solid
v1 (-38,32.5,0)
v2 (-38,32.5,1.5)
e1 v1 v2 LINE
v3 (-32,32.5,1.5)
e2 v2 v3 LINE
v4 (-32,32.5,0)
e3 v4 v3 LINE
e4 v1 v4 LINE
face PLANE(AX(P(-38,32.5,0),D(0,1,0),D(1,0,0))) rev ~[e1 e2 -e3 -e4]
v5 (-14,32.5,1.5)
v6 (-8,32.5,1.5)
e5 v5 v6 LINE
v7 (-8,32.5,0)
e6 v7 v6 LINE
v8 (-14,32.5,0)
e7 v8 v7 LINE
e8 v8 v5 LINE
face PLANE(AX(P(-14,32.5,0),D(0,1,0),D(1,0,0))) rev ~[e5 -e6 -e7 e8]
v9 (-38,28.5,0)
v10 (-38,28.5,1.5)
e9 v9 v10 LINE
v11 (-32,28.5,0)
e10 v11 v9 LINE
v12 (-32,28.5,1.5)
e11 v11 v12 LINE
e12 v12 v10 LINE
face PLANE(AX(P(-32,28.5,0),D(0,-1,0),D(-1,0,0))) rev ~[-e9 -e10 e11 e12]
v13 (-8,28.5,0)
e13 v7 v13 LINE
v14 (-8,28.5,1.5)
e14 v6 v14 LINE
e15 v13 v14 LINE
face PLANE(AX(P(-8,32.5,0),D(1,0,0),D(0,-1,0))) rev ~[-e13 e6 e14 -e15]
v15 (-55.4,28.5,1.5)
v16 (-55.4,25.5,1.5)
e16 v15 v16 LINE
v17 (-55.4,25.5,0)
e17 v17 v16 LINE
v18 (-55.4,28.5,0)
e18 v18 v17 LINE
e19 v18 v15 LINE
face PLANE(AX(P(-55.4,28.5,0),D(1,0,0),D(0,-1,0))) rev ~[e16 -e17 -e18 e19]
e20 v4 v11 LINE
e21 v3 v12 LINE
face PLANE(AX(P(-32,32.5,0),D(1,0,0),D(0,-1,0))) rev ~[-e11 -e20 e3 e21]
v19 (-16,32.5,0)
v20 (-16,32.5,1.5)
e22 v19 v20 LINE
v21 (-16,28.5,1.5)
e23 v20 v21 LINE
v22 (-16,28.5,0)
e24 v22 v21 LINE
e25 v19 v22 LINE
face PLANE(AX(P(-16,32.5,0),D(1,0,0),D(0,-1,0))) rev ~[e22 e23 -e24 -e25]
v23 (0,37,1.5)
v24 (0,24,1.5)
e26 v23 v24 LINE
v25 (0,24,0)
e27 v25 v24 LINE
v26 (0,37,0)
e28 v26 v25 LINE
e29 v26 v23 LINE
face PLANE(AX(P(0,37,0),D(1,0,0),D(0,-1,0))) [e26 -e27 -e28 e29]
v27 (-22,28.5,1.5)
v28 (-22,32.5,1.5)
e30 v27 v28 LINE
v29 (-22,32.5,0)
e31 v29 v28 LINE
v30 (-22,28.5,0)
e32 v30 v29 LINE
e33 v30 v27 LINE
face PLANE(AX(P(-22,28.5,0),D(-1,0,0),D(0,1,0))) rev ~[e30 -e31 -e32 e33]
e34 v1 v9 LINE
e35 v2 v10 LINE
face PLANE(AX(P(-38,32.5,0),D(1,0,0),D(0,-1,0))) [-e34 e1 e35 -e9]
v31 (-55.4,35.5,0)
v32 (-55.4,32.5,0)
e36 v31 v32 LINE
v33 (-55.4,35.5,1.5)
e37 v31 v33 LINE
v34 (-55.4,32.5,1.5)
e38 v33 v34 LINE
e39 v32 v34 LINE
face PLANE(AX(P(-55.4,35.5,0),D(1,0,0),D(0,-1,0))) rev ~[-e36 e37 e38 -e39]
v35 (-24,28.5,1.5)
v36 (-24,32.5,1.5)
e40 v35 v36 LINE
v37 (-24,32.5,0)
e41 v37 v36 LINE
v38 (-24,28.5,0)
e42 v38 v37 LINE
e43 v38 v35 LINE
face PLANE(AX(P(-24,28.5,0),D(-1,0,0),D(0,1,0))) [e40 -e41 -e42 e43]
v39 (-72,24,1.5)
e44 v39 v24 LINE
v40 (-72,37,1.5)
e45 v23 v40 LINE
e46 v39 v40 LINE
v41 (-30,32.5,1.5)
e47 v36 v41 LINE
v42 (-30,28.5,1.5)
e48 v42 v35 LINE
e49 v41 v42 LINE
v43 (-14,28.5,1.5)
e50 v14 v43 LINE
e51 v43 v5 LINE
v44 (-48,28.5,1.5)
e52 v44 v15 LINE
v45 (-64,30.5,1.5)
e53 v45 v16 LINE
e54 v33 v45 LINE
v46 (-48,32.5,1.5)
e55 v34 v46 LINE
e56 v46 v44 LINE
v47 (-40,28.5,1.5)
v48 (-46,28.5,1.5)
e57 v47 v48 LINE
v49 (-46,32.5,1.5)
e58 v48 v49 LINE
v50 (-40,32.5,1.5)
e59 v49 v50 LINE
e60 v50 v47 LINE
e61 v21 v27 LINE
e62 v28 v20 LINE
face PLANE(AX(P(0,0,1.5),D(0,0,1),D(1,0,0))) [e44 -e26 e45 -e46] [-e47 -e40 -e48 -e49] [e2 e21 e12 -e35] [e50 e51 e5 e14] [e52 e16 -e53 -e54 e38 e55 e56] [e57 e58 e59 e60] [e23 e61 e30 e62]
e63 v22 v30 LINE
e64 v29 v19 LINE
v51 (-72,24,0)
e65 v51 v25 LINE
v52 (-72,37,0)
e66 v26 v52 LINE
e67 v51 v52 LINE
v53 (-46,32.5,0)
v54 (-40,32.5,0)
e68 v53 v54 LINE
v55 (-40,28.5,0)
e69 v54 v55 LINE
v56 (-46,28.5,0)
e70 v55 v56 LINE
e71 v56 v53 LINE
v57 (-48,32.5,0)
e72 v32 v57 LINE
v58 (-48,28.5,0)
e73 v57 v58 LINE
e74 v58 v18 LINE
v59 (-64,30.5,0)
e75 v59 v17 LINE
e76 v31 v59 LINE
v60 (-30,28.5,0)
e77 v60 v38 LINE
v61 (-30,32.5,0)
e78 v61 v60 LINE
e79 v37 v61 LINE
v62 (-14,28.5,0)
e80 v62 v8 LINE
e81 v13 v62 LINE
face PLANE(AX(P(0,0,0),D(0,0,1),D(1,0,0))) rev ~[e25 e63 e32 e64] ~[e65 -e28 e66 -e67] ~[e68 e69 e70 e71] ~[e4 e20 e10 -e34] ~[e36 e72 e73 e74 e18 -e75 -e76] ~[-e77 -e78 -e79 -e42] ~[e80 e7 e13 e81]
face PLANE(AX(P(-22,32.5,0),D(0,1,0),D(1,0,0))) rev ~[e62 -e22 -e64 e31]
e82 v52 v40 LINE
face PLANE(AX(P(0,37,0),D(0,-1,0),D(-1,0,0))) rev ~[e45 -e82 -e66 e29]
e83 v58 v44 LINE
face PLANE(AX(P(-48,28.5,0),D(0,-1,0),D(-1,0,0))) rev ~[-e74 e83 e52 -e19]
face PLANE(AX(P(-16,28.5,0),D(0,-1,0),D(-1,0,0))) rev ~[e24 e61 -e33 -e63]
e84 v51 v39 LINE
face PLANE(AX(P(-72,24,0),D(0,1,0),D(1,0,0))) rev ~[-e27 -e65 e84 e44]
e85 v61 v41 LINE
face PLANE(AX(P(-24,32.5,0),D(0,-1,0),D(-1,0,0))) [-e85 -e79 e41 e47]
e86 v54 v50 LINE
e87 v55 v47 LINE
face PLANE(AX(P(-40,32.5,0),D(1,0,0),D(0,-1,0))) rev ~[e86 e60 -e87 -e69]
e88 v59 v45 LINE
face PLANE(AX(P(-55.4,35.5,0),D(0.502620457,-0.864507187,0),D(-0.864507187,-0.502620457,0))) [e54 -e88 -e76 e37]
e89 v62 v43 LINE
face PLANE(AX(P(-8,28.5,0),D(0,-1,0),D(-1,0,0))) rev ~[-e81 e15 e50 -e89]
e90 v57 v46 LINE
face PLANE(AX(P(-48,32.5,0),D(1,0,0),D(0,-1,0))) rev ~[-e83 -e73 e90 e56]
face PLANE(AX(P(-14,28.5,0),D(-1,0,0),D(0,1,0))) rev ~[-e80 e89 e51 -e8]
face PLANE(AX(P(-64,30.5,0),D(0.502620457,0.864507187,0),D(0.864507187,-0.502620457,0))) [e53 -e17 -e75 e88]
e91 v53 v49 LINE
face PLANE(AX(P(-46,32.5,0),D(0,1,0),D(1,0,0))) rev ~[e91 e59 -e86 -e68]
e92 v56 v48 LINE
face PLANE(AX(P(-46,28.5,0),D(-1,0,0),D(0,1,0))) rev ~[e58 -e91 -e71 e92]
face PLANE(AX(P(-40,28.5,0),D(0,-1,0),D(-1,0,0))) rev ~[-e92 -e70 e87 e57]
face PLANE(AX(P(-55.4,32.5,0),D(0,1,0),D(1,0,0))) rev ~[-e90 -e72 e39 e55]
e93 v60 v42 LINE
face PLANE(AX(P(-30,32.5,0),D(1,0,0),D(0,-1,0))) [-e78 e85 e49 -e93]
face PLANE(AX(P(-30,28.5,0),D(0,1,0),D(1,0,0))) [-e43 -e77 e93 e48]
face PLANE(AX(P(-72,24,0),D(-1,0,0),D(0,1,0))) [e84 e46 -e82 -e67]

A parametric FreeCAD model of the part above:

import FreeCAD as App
import Part
import Sketcher
from FreeCAD import Vector


def add_polygon(sketch, points):
    """Adds a closed chain of lines whose ends are joined by coincident constraints."""
    first, n = sketch.GeometryCount, len(points)
    for a, b in zip(points, points[1:] + points[:1]):
        sketch.addGeometry(Part.LineSegment(App.Vector(*a, 0), App.Vector(*b, 0)), False)
    for i in range(n):
        sketch.addConstraint(Sketcher.Constraint("Coincident", first + i, 2, first + (i + 1) % n, 1))

doc = App.newDocument("Part")
body = doc.addObject("PartDesign::Body", "Body")

# Sketch on XY plane
sketch1 = doc.addObject("Sketcher::SketchObject", "Sketch")
body.addObject(sketch1)
sketch1.AttachmentSupport = (doc.XY_Plane, [""])
sketch1.MapMode = "FlatFace"
add_polygon(sketch1, [(0, 24), (0, 37), (-72, 37), (-72, 24)])  # lines 0-3
add_polygon(sketch1, [(-64, 30.5), (-55.4, 35.5), (-55.4, 32.5), (-48, 32.5), (-48, 28.5), (-55.4, 28.5), (-55.4, 25.5)])  # lines 4-10
add_polygon(sketch1, [(-40, 32.5), (-40, 28.5), (-46, 28.5), (-46, 32.5)])  # lines 11-14
add_polygon(sketch1, [(-32, 32.5), (-32, 28.5), (-38, 28.5), (-38, 32.5)])  # lines 15-18
add_polygon(sketch1, [(-30, 32.5), (-24, 32.5), (-24, 28.5), (-30, 28.5)])  # lines 19-22
add_polygon(sketch1, [(-22, 28.5), (-22, 32.5), (-16, 32.5), (-16, 28.5)])  # lines 23-26
add_polygon(sketch1, [(-14, 28.5), (-14, 32.5), (-8, 32.5), (-8, 28.5)])  # lines 27-30
sketch1.addConstraint([
    Sketcher.Constraint("Vertical", 0),
    Sketcher.Constraint("Horizontal", 1),
    Sketcher.Constraint("Vertical", 2),
    Sketcher.Constraint("Horizontal", 3),
    Sketcher.Constraint("Vertical", 5),
    Sketcher.Constraint("Horizontal", 6),
    Sketcher.Constraint("Vertical", 7),
    Sketcher.Constraint("Horizontal", 8),
    Sketcher.Constraint("Vertical", 9),
    Sketcher.Constraint("Vertical", 11),
    Sketcher.Constraint("Horizontal", 12),
    Sketcher.Constraint("Vertical", 13),
    Sketcher.Constraint("Horizontal", 14),
    Sketcher.Constraint("Vertical", 15),
    Sketcher.Constraint("Horizontal", 16),
    Sketcher.Constraint("Vertical", 17),
    Sketcher.Constraint("Horizontal", 18),
    Sketcher.Constraint("Horizontal", 19),
    Sketcher.Constraint("Vertical", 20),
    Sketcher.Constraint("Horizontal", 21),
    Sketcher.Constraint("Vertical", 22),
    Sketcher.Constraint("Vertical", 23),
    Sketcher.Constraint("Horizontal", 24),
    Sketcher.Constraint("Vertical", 25),
    Sketcher.Constraint("Horizontal", 26),
    Sketcher.Constraint("Vertical", 27),
    Sketcher.Constraint("Horizontal", 28),
    Sketcher.Constraint("Vertical", 29),
    Sketcher.Constraint("Horizontal", 30),
    Sketcher.Constraint("PointOnObject", 0, 2, -2),
    Sketcher.Constraint("Horizontal", 8, 2, 11, 2),
    Sketcher.Constraint("Horizontal", 6, 2, 13, 2),
    Sketcher.Constraint("Horizontal", 12, 2, 15, 2),
    Sketcher.Constraint("Horizontal", 14, 2, 17, 2),
    Sketcher.Constraint("Horizontal", 18, 2, 19, 2),
    Sketcher.Constraint("Horizontal", 16, 2, 20, 2),
    Sketcher.Constraint("Horizontal", 22, 2, 23, 2),
    Sketcher.Constraint("Horizontal", 21, 2, 25, 2),
    Sketcher.Constraint("Horizontal", 24, 2, 27, 2),
    Sketcher.Constraint("Horizontal", 26, 2, 29, 2),
    Sketcher.Constraint("Vertical", 5, 2, 8, 2),
    Sketcher.Constraint("Equal", 14, 16),
    Sketcher.Constraint("Equal", 18, 19),
    Sketcher.Constraint("Equal", 21, 24),
    Sketcher.Constraint("Equal", 26, 28),
    Sketcher.Constraint("Equal", 5, 9),
    Sketcher.Constraint("Equal", 4, 10),
    Sketcher.Constraint("DistanceX", 12, 2, 12, 1, 6.0),
    Sketcher.Constraint("DistanceY", 0, 1, 0, 2, 13.0),
    Sketcher.Constraint("DistanceY", 5, 2, 5, 1, 3.0),
    Sketcher.Constraint("DistanceY", 7, 2, 7, 1, 4.0),
    Sketcher.Constraint("DistanceX", 6, 1, 6, 2, 7.4),
    Sketcher.Constraint("DistanceY", -1, 1, 2, 2, 24.0),
    Sketcher.Constraint("DistanceX", 19, 2, -1, 1, 24.0),
    Sketcher.Constraint("DistanceX", 28, 2, -1, 1, 8.0),
    Sketcher.Constraint("DistanceX", 1, 2, 6, 2, 24.0),
    Sketcher.Constraint("DistanceX", 1, 2, 10, 2, 8.0),
    Sketcher.Constraint("DistanceX", 7, 2, 11, 2, 8.0),
    Sketcher.Constraint("DistanceX", 11, 2, 15, 2, 8.0),
    Sketcher.Constraint("DistanceX", 18, 2, 19, 2, 8.0),
    Sketcher.Constraint("DistanceX", 19, 2, 23, 2, 2.0),
    Sketcher.Constraint("DistanceY", -1, 1, 7, 2, 28.5),
])
pad1 = doc.addObject("PartDesign::Pad", "Pad")
body.addObject(pad1)
pad1.Profile = sketch1
pad1.Length = 1.5

doc.recompute()
